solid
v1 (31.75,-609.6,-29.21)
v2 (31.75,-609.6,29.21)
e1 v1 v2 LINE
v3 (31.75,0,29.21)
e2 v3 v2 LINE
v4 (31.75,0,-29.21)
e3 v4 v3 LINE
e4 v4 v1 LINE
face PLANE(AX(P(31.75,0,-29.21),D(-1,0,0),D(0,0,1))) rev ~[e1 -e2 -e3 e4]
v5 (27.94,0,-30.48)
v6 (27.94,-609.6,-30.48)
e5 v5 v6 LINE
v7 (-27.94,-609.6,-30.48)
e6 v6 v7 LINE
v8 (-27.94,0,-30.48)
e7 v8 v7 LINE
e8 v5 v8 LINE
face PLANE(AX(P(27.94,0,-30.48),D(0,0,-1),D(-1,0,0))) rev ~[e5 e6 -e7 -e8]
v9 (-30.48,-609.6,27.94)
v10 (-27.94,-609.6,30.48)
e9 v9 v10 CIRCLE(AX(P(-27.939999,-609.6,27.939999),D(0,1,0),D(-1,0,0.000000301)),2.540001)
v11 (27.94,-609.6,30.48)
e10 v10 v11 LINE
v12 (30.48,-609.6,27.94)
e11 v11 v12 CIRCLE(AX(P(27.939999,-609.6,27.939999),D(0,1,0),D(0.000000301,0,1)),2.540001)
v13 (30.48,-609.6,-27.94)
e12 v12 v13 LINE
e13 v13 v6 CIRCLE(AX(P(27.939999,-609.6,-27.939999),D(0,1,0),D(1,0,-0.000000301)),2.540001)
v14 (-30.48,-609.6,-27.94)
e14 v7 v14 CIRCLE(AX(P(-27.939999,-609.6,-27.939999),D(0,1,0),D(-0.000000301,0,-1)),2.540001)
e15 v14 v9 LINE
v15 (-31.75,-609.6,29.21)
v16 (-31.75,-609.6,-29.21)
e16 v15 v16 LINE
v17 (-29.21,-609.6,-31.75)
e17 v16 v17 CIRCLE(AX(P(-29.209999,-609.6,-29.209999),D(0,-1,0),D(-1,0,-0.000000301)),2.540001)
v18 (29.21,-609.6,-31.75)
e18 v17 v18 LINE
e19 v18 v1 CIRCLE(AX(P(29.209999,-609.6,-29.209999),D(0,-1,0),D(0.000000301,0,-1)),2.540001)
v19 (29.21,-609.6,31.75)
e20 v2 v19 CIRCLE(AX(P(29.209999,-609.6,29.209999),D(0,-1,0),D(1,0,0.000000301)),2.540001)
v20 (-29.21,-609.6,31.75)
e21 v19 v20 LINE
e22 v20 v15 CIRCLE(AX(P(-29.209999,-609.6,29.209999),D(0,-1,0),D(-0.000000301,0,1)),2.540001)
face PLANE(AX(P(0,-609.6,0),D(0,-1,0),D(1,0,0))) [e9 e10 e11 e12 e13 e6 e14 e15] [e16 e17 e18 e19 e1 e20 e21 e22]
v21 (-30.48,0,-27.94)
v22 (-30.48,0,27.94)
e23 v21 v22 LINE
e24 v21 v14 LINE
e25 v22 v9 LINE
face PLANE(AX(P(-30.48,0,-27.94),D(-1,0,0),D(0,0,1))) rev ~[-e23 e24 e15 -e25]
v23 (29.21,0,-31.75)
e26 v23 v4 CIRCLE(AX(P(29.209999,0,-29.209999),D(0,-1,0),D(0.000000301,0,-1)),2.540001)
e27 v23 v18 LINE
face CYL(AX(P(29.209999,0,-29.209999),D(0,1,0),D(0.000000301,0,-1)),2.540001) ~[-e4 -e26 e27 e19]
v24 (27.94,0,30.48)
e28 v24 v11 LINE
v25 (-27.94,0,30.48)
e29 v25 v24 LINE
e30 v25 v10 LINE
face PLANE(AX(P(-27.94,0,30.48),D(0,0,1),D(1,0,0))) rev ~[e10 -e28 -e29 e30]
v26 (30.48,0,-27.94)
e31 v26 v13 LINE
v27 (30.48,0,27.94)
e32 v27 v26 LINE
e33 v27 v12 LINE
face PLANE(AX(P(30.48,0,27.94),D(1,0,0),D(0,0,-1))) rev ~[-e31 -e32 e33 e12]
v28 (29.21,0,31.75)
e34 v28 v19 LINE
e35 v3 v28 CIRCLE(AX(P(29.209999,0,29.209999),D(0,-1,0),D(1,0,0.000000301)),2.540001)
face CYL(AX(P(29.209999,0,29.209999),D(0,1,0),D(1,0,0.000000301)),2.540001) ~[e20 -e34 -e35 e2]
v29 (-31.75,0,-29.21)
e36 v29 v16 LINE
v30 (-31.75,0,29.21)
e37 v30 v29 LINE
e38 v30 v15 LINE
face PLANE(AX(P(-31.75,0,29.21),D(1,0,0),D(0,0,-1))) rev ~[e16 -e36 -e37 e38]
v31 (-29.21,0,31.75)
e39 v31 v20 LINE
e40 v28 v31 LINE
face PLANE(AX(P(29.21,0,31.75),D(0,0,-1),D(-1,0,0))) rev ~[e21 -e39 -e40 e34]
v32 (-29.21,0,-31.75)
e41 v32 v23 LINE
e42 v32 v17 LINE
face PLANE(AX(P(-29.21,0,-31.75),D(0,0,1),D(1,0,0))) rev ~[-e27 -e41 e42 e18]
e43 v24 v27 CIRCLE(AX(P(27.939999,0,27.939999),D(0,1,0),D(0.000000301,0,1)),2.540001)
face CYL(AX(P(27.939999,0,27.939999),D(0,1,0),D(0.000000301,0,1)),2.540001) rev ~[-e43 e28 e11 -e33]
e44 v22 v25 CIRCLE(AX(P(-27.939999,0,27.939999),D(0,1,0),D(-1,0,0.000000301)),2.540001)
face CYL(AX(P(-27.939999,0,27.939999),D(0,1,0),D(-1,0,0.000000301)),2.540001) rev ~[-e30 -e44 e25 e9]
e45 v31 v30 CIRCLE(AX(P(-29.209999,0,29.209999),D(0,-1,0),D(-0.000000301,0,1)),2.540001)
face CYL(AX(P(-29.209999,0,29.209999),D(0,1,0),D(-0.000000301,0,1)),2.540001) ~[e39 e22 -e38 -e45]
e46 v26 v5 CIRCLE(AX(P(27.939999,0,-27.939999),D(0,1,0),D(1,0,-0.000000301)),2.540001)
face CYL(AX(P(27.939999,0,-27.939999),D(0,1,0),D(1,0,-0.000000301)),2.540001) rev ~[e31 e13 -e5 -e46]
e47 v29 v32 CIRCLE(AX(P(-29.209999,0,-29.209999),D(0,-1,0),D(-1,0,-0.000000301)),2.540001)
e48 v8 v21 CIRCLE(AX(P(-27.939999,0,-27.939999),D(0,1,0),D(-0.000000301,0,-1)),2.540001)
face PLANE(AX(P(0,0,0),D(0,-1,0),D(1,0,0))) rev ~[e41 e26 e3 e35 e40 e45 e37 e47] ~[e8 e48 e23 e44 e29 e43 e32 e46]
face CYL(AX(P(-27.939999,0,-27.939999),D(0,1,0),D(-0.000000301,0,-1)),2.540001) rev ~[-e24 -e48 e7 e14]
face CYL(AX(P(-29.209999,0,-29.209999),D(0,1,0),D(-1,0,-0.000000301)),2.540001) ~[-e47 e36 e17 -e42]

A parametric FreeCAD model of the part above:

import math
import FreeCAD as App
import Part
import Sketcher
Q = App.Units.Quantity

doc = App.newDocument("Part")
body = doc.addObject("PartDesign::Body", "Body")

sketch1 = body.newObject("Sketcher::SketchObject", "Sketch")
sketch1.AttachmentSupport = (doc.getObject("XZ_Plane"), [""])
sketch1.MapMode = "FlatFace"
sketch1.addGeometry([
    Part.ArcOfCircle(Part.Circle(App.Vector(29.2, 29.2, 0), App.Vector(0, 0, 1), 2.5), math.radians(0), math.radians(90)),
    Part.LineSegment(App.Vector(29.2, 31.8, 0), App.Vector(-29.2, 31.8, 0)),
    Part.ArcOfCircle(Part.Circle(App.Vector(-29.2, 29.2, 0), App.Vector(0, 0, 1), 2.5), math.radians(90), math.radians(180)),
    Part.LineSegment(App.Vector(-31.8, 29.2, 0), App.Vector(-31.8, -29.2, 0)),
    Part.ArcOfCircle(Part.Circle(App.Vector(-29.2, -29.2, 0), App.Vector(0, 0, 1), 2.5), math.radians(-180), math.radians(-90)),
    Part.LineSegment(App.Vector(-29.2, -31.8, 0), App.Vector(29.2, -31.8, 0)),
    Part.ArcOfCircle(Part.Circle(App.Vector(29.2, -29.2, 0), App.Vector(0, 0, 1), 2.5), math.radians(-90), math.radians(0)),
    Part.LineSegment(App.Vector(31.8, -29.2, 0), App.Vector(31.8, 29.2, 0)),
    Part.ArcOfCircle(Part.Circle(App.Vector(-27.9, 27.9, 0), App.Vector(0, 0, 1), 2.5), math.radians(90), math.radians(180)),
    Part.LineSegment(App.Vector(-27.9, 30.5, 0), App.Vector(27.9, 30.5, 0)),
    Part.ArcOfCircle(Part.Circle(App.Vector(27.9, 27.9, 0), App.Vector(0, 0, 1), 2.5), math.radians(0), math.radians(90)),
    Part.LineSegment(App.Vector(30.5, 27.9, 0), App.Vector(30.5, -27.9, 0)),
    Part.ArcOfCircle(Part.Circle(App.Vector(27.9, -27.9, 0), App.Vector(0, 0, 1), 2.5), math.radians(-90), math.radians(0)),
    Part.LineSegment(App.Vector(27.9, -30.5, 0), App.Vector(-27.9, -30.5, 0)),
    Part.ArcOfCircle(Part.Circle(App.Vector(-27.9, -27.9, 0), App.Vector(0, 0, 1), 2.5), math.radians(-180), math.radians(-90)),
    Part.LineSegment(App.Vector(-30.5, -27.9, 0), App.Vector(-30.5, 27.9, 0)),
], False)
sketch1.addConstraint([
    Sketcher.Constraint("Tangent", 0, 2, 1, 1),
    Sketcher.Constraint("Tangent", 1, 2, 2, 1),
    Sketcher.Constraint("Tangent", 2, 2, 3, 1),
    Sketcher.Constraint("Tangent", 3, 2, 4, 1),
    Sketcher.Constraint("Tangent", 4, 2, 5, 1),
    Sketcher.Constraint("Tangent", 5, 2, 6, 1),
    Sketcher.Constraint("Tangent", 6, 2, 7, 1),
    Sketcher.Constraint("Tangent", 7, 2, 0, 1),
    Sketcher.Constraint("Tangent", 8, 1, 9, 1),
    Sketcher.Constraint("Tangent", 9, 2, 10, 2),
    Sketcher.Constraint("Tangent", 10, 1, 11, 1),
    Sketcher.Constraint("Tangent", 11, 2, 12, 2),
    Sketcher.Constraint("Tangent", 12, 1, 13, 1),
    Sketcher.Constraint("Tangent", 13, 2, 14, 2),
    Sketcher.Constraint("Tangent", 14, 1, 15, 1),
    Sketcher.Constraint("Tangent", 15, 2, 8, 2),
    Sketcher.Constraint("Horizontal", 1),
    Sketcher.Constraint("Vertical", 3),
    Sketcher.Constraint("Horizontal", 5),
    Sketcher.Constraint("Vertical", 7),
    Sketcher.Constraint("Horizontal", 9),
    Sketcher.Constraint("Vertical", 11),
    Sketcher.Constraint("Horizontal", 13),
    Sketcher.Constraint("Vertical", 15),
    Sketcher.Constraint("Equal", 0, 2),
    Sketcher.Constraint("Equal", 2, 4),
    Sketcher.Constraint("Equal", 4, 6),
    Sketcher.Constraint("Equal", 6, 8),
    Sketcher.Constraint("Equal", 8, 10),
    Sketcher.Constraint("Equal", 10, 12),
    Sketcher.Constraint("Equal", 12, 14),
    Sketcher.Constraint("Symmetric", 0, 3, 4, 3, -1, 1),
    Sketcher.Constraint("Symmetric", 8, 3, 12, 3, -1, 1),
    Sketcher.Constraint("Equal", 5, 3),
    Sketcher.Constraint("Equal", 13, 11),
    Sketcher.Constraint("Radius", 0, Q("0.1 in")),
    Sketcher.Constraint("DistanceX", 1, 2, 1, 1, Q("2.3 in")),
    Sketcher.Constraint("DistanceX", 9, 1, 9, 2, Q("2.2 in")),
])
pad1 = body.newObject("PartDesign::Pad", "Pad")
pad1.Profile = sketch1
pad1.Length = Q("24 in")

doc.recompute()
